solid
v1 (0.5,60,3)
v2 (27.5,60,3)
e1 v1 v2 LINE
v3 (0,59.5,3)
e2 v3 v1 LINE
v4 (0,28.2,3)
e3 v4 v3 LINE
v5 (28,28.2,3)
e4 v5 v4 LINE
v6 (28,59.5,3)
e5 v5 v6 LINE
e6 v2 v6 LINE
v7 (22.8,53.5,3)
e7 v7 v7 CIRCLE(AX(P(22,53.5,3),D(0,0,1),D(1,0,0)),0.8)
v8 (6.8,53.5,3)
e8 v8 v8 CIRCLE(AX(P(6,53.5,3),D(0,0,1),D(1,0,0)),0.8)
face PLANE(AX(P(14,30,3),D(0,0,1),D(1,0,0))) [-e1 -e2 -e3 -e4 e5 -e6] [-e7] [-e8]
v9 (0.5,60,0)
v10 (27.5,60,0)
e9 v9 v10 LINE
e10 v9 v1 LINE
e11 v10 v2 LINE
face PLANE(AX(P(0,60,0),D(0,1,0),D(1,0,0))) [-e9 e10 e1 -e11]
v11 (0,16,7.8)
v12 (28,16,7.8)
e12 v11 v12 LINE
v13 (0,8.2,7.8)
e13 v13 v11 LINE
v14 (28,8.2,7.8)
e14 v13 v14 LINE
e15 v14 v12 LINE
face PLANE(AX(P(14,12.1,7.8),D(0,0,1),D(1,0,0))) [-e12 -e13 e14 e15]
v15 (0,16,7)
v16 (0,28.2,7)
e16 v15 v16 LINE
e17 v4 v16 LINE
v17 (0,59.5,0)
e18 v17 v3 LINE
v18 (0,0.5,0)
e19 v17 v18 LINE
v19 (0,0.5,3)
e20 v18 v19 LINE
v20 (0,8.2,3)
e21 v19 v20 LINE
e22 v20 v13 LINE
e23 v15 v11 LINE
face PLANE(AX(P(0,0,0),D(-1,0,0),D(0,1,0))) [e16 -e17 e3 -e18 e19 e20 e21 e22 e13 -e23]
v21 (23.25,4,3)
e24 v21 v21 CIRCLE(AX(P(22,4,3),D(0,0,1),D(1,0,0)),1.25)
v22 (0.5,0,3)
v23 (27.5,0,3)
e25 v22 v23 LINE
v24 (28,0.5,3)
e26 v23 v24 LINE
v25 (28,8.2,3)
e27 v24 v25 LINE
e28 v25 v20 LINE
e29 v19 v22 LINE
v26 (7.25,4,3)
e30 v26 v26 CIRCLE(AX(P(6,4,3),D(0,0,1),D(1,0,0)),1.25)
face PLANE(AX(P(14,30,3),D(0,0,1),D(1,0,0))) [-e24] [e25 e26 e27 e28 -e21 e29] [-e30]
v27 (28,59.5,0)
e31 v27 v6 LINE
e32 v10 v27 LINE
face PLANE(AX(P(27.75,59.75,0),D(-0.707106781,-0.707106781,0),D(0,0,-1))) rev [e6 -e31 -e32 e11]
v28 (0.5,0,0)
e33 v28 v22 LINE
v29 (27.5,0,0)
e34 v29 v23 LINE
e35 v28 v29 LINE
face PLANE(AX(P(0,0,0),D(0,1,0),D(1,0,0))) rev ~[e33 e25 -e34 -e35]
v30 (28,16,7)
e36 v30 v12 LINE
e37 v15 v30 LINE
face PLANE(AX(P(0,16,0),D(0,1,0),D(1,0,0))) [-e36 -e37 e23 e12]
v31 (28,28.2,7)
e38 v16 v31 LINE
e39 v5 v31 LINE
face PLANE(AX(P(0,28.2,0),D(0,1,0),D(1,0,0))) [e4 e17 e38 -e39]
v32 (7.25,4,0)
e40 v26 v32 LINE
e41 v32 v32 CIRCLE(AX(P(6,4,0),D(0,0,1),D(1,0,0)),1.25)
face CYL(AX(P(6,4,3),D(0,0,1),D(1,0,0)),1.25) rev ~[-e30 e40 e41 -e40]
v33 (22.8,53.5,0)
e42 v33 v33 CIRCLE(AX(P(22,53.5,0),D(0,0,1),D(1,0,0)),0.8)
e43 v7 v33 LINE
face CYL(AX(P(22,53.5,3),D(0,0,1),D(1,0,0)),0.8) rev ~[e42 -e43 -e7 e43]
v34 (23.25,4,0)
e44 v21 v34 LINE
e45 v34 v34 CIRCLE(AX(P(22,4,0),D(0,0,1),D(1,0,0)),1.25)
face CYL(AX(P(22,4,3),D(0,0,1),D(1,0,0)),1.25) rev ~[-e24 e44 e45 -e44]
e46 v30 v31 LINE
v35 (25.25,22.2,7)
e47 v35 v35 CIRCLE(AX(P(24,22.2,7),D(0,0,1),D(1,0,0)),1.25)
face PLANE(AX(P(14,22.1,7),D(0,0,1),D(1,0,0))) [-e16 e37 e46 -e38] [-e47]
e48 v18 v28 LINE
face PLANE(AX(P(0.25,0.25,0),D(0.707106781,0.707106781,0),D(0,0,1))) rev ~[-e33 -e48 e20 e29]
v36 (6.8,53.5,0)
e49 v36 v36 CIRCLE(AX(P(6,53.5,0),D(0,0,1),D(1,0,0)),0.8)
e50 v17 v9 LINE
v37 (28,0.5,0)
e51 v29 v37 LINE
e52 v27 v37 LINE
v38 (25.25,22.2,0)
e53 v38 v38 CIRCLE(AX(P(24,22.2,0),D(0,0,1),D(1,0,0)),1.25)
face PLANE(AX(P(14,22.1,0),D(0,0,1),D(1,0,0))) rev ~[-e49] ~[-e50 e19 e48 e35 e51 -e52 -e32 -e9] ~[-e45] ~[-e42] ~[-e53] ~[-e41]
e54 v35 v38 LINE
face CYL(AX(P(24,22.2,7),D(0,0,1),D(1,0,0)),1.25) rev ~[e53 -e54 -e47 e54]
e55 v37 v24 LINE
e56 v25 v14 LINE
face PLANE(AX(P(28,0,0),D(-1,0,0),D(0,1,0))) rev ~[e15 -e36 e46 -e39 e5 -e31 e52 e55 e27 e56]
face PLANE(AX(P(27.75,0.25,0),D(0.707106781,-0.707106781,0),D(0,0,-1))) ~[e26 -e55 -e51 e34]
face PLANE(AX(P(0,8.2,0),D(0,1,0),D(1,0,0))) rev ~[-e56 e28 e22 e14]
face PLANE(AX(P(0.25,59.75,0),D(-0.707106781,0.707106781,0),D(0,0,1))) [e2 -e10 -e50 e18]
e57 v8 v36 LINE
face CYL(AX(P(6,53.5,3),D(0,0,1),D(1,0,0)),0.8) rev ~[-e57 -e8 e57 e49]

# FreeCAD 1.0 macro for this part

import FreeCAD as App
import Part
import Sketcher

V = App.Vector
Q = App.Units.Quantity


def edges_at(feature, points):
    """Names of the edges that pass closest to the given points."""
    edges = feature.Shape.Edges
    near = lambda p: min(range(len(edges)), key=lambda i: edges[i].distToShape(Part.Vertex(*p))[0])
    return sorted({f"Edge{near(p) + 1}" for p in points})

doc = App.newDocument("Part")
params = doc.addObject("Spreadsheet::Sheet", "Params")
for row, (alias, value) in enumerate([
    ("sketch1_width", "28 mm"),
    ("sketch1_height", "60 mm"),
    ("pad1_length", "3 mm"),
    ("sketch2_width", "28 mm"),
    ("sketch2_height", "7.8 mm"),
    ("pad2_length", "7.8 mm"),
    ("sketch3_width", "28 mm"),
    ("sketch3_height", "12.2 mm"),
    ("pad3_length", "7 mm"),
    ("sketch4_diameter", "1.6 mm"),
    ("pocket1_length", "25 mm"),
    ("sketch5_diameter", "1.6 mm"),
    ("pocket2_length", "25 mm"),
    ("sketch6_diameter", "2.5 mm"),
    ("pocket3_length", "25 mm"),
    ("sketch7_diameter", "2.5 mm"),
    ("pocket4_length", "25 mm"),
    ("chamfer_size", "0.5 mm"),
    ("sketch8_diameter", "2.5 mm"),
    ("pocket5_length", "25 mm"),
], start=1):
    params.set(f"A{row}", alias)
    params.set(f"B{row}", "=" + value)
    params.setAlias(f"B{row}", alias)

body = doc.addObject("PartDesign::Body", "Body")

sketch1 = body.newObject("Sketcher::SketchObject", "Sketch")
sketch1.AttachmentSupport = (doc.getObject("XY_Plane"), [""])
sketch1.MapMode = "FlatFace"
sketch1.addGeometry(Part.LineSegment(V(0, 60, 0), V(0, 0, 0)), False)
sketch1.addGeometry(Part.LineSegment(V(0, 0, 0), V(28, 0, 0)), False)
sketch1.addGeometry(Part.LineSegment(V(28, 0, 0), V(28, 60, 0)), False)
sketch1.addGeometry(Part.LineSegment(V(28, 60, 0), V(0, 60, 0)), False)
sketch1.addConstraint(Sketcher.Constraint("Coincident", 0, 2, 1, 1))
sketch1.addConstraint(Sketcher.Constraint("Coincident", 1, 2, 2, 1))
sketch1.addConstraint(Sketcher.Constraint("Coincident", 2, 2, 3, 1))
sketch1.addConstraint(Sketcher.Constraint("Coincident", 3, 2, 0, 1))
sketch1.addConstraint(Sketcher.Constraint("Vertical", 0))
sketch1.addConstraint(Sketcher.Constraint("Horizontal", 1))
sketch1.addConstraint(Sketcher.Constraint("Vertical", 2))
sketch1.addConstraint(Sketcher.Constraint("Horizontal", 3))
sketch1.addConstraint(Sketcher.Constraint("Coincident", 0, 2, -1, 1))
sketch1.addConstraint(Sketcher.Constraint("DistanceX", 1, 1, 1, 2, Q("28 mm")))
sketch1.addConstraint(Sketcher.Constraint("DistanceY", 0, 2, 0, 1, Q("60 mm")))
sketch1.setExpression("Constraints[9]", "Params.sketch1_width")
sketch1.setExpression("Constraints[10]", "Params.sketch1_height")
pad1 = body.newObject("PartDesign::Pad", "Pad")
pad1.Profile = sketch1
pad1.setExpression("Length", "Params.pad1_length")

sketch2 = body.newObject("Sketcher::SketchObject", "Sketch001")
sketch2.AttachmentSupport = (doc.getObject("XY_Plane"), [""])
sketch2.MapMode = "FlatFace"
sketch2.addGeometry(Part.LineSegment(V(0, 16, 0), V(0, 8, 0)), False)
sketch2.addGeometry(Part.LineSegment(V(0, 8, 0), V(28, 8, 0)), False)
sketch2.addGeometry(Part.LineSegment(V(28, 8, 0), V(28, 16, 0)), False)
sketch2.addGeometry(Part.LineSegment(V(28, 16, 0), V(0, 16, 0)), False)
sketch2.addConstraint(Sketcher.Constraint("Coincident", 0, 2, 1, 1))
sketch2.addConstraint(Sketcher.Constraint("Coincident", 1, 2, 2, 1))
sketch2.addConstraint(Sketcher.Constraint("Coincident", 2, 2, 3, 1))
sketch2.addConstraint(Sketcher.Constraint("Coincident", 3, 2, 0, 1))
sketch2.addConstraint(Sketcher.Constraint("Vertical", 0))
sketch2.addConstraint(Sketcher.Constraint("Horizontal", 1))
sketch2.addConstraint(Sketcher.Constraint("Vertical", 2))
sketch2.addConstraint(Sketcher.Constraint("Horizontal", 3))
sketch2.addConstraint(Sketcher.Constraint("PointOnObject", 0, 2, -2))
sketch2.addConstraint(Sketcher.Constraint("DistanceX", 1, 1, 1, 2, Q("28 mm")))
sketch2.addConstraint(Sketcher.Constraint("DistanceY", 0, 2, 0, 1, Q("7.8 mm")))
sketch2.addConstraint(Sketcher.Constraint("DistanceY", -1, 1, 2, 2, Q("16 mm")))
sketch2.setExpression("Constraints[9]", "Params.sketch2_width")
sketch2.setExpression("Constraints[10]", "Params.sketch2_height")
pad2 = body.newObject("PartDesign::Pad", "Pad001")
pad2.Profile = sketch2
pad2.setExpression("Length", "Params.pad2_length")

sketch3 = body.newObject("Sketcher::SketchObject", "Sketch002")
sketch3.AttachmentSupport = (doc.getObject("XY_Plane"), [""])
sketch3.MapMode = "FlatFace"
sketch3.addGeometry(Part.LineSegment(V(0, 28, 0), V(0, 16, 0)), False)
sketch3.addGeometry(Part.LineSegment(V(0, 16, 0), V(28, 16, 0)), False)
sketch3.addGeometry(Part.LineSegment(V(28, 16, 0), V(28, 28, 0)), False)
sketch3.addGeometry(Part.LineSegment(V(28, 28, 0), V(0, 28, 0)), False)
sketch3.addConstraint(Sketcher.Constraint("Coincident", 0, 2, 1, 1))
sketch3.addConstraint(Sketcher.Constraint("Coincident", 1, 2, 2, 1))
sketch3.addConstraint(Sketcher.Constraint("Coincident", 2, 2, 3, 1))
sketch3.addConstraint(Sketcher.Constraint("Coincident", 3, 2, 0, 1))
sketch3.addConstraint(Sketcher.Constraint("Vertical", 0))
sketch3.addConstraint(Sketcher.Constraint("Horizontal", 1))
sketch3.addConstraint(Sketcher.Constraint("Vertical", 2))
sketch3.addConstraint(Sketcher.Constraint("Horizontal", 3))
sketch3.addConstraint(Sketcher.Constraint("PointOnObject", 0, 2, -2))
sketch3.addConstraint(Sketcher.Constraint("DistanceX", 1, 1, 1, 2, Q("28 mm")))
sketch3.addConstraint(Sketcher.Constraint("DistanceY", 0, 2, 0, 1, Q("12.2 mm")))
sketch3.addConstraint(Sketcher.Constraint("DistanceY", -1, 1, 0, 2, Q("16 mm")))
sketch3.setExpression("Constraints[9]", "Params.sketch3_width")
sketch3.setExpression("Constraints[10]", "Params.sketch3_height")
pad3 = body.newObject("PartDesign::Pad", "Pad002")
pad3.Profile = sketch3
pad3.setExpression("Length", "Params.pad3_length")

sketch4 = body.newObject("Sketcher::SketchObject", "Sketch003")
sketch4.AttachmentSupport = (doc.getObject("XY_Plane"), [""])
sketch4.MapMode = "FlatFace"
sketch4.AttachmentOffset = App.Placement(V(0, 0, 3), App.Rotation())
sketch4.addGeometry(Part.Circle(V(6, 53.5, 0), V(0, 0, 1), 0.8), False)
sketch4.addConstraint(Sketcher.Constraint("Diameter", 0, Q("1.6 mm")))
sketch4.addConstraint(Sketcher.Constraint("DistanceX", -1, 1, 0, 3, Q("6 mm")))
sketch4.addConstraint(Sketcher.Constraint("DistanceY", -1, 1, 0, 3, Q("53.5 mm")))
sketch4.setExpression("Constraints[0]", "Params.sketch4_diameter")
pocket1 = body.newObject("PartDesign::Pocket", "Pocket")
pocket1.Profile = sketch4
pocket1.setExpression("Length", "Params.pocket1_length")

sketch5 = body.newObject("Sketcher::SketchObject", "Sketch004")
sketch5.AttachmentSupport = (doc.getObject("XY_Plane"), [""])
sketch5.MapMode = "FlatFace"
sketch5.AttachmentOffset = App.Placement(V(0, 0, 3), App.Rotation())
sketch5.addGeometry(Part.Circle(V(22, 53.5, 0), V(0, 0, 1), 0.8), False)
sketch5.addConstraint(Sketcher.Constraint("Diameter", 0, Q("1.6 mm")))
sketch5.addConstraint(Sketcher.Constraint("DistanceX", -1, 1, 0, 3, Q("22 mm")))
sketch5.addConstraint(Sketcher.Constraint("DistanceY", -1, 1, 0, 3, Q("53.5 mm")))
sketch5.setExpression("Constraints[0]", "Params.sketch5_diameter")
pocket2 = body.newObject("PartDesign::Pocket", "Pocket001")
pocket2.Profile = sketch5
pocket2.setExpression("Length", "Params.pocket2_length")

sketch6 = body.newObject("Sketcher::SketchObject", "Sketch005")
sketch6.AttachmentSupport = (doc.getObject("XY_Plane"), [""])
sketch6.MapMode = "FlatFace"
sketch6.AttachmentOffset = App.Placement(V(0, 0, 3), App.Rotation())
sketch6.addGeometry(Part.Circle(V(6, 4, 0), V(0, 0, 1), 1.2), False)
sketch6.addConstraint(Sketcher.Constraint("Diameter", 0, Q("2.5 mm")))
sketch6.addConstraint(Sketcher.Constraint("DistanceX", -1, 1, 0, 3, Q("6 mm")))
sketch6.addConstraint(Sketcher.Constraint("DistanceY", -1, 1, 0, 3, Q("4 mm")))
sketch6.setExpression("Constraints[0]", "Params.sketch6_diameter")
pocket3 = body.newObject("PartDesign::Pocket", "Pocket002")
pocket3.Profile = sketch6
pocket3.setExpression("Length", "Params.pocket3_length")

sketch7 = body.newObject("Sketcher::SketchObject", "Sketch006")
sketch7.AttachmentSupport = (doc.getObject("XY_Plane"), [""])
sketch7.MapMode = "FlatFace"
sketch7.AttachmentOffset = App.Placement(V(0, 0, 3), App.Rotation())
sketch7.addGeometry(Part.Circle(V(22, 4, 0), V(0, 0, 1), 1.2), False)
sketch7.addConstraint(Sketcher.Constraint("Diameter", 0, Q("2.5 mm")))
sketch7.addConstraint(Sketcher.Constraint("DistanceX", -1, 1, 0, 3, Q("22 mm")))
sketch7.addConstraint(Sketcher.Constraint("DistanceY", -1, 1, 0, 3, Q("4 mm")))
sketch7.setExpression("Constraints[0]", "Params.sketch7_diameter")
pocket4 = body.newObject("PartDesign::Pocket", "Pocket003")
pocket4.Profile = sketch7
pocket4.setExpression("Length", "Params.pocket4_length")
doc.recompute()

chamfer = body.newObject("PartDesign::Chamfer", "Chamfer")
chamfer.Base = (pocket4, edges_at(pocket4, [
    (28, 0, 1.5),
    (0, 0, 1.5),
    (0, 60, 1.5),
    (28, 60, 1.5),
]))
chamfer.setExpression("Size", "Params.chamfer_size")

sketch8 = body.newObject("Sketcher::SketchObject", "Sketch007")
sketch8.AttachmentSupport = (doc.getObject("XY_Plane"), [""])
sketch8.MapMode = "FlatFace"
sketch8.AttachmentOffset = App.Placement(V(0, 0, 7), App.Rotation())
sketch8.addGeometry(Part.Circle(V(24, 22.2, 0), V(0, 0, 1), 1.2), False)
sketch8.addConstraint(Sketcher.Constraint("Diameter", 0, Q("2.5 mm")))
sketch8.addConstraint(Sketcher.Constraint("DistanceX", -1, 1, 0, 3, Q("24 mm")))
sketch8.addConstraint(Sketcher.Constraint("DistanceY", -1, 1, 0, 3, Q("22.2 mm")))
sketch8.setExpression("Constraints[0]", "Params.sketch8_diameter")
pocket5 = body.newObject("PartDesign::Pocket", "Pocket004")
pocket5.Profile = sketch8
pocket5.setExpression("Length", "Params.pocket5_length")

doc.recompute()
